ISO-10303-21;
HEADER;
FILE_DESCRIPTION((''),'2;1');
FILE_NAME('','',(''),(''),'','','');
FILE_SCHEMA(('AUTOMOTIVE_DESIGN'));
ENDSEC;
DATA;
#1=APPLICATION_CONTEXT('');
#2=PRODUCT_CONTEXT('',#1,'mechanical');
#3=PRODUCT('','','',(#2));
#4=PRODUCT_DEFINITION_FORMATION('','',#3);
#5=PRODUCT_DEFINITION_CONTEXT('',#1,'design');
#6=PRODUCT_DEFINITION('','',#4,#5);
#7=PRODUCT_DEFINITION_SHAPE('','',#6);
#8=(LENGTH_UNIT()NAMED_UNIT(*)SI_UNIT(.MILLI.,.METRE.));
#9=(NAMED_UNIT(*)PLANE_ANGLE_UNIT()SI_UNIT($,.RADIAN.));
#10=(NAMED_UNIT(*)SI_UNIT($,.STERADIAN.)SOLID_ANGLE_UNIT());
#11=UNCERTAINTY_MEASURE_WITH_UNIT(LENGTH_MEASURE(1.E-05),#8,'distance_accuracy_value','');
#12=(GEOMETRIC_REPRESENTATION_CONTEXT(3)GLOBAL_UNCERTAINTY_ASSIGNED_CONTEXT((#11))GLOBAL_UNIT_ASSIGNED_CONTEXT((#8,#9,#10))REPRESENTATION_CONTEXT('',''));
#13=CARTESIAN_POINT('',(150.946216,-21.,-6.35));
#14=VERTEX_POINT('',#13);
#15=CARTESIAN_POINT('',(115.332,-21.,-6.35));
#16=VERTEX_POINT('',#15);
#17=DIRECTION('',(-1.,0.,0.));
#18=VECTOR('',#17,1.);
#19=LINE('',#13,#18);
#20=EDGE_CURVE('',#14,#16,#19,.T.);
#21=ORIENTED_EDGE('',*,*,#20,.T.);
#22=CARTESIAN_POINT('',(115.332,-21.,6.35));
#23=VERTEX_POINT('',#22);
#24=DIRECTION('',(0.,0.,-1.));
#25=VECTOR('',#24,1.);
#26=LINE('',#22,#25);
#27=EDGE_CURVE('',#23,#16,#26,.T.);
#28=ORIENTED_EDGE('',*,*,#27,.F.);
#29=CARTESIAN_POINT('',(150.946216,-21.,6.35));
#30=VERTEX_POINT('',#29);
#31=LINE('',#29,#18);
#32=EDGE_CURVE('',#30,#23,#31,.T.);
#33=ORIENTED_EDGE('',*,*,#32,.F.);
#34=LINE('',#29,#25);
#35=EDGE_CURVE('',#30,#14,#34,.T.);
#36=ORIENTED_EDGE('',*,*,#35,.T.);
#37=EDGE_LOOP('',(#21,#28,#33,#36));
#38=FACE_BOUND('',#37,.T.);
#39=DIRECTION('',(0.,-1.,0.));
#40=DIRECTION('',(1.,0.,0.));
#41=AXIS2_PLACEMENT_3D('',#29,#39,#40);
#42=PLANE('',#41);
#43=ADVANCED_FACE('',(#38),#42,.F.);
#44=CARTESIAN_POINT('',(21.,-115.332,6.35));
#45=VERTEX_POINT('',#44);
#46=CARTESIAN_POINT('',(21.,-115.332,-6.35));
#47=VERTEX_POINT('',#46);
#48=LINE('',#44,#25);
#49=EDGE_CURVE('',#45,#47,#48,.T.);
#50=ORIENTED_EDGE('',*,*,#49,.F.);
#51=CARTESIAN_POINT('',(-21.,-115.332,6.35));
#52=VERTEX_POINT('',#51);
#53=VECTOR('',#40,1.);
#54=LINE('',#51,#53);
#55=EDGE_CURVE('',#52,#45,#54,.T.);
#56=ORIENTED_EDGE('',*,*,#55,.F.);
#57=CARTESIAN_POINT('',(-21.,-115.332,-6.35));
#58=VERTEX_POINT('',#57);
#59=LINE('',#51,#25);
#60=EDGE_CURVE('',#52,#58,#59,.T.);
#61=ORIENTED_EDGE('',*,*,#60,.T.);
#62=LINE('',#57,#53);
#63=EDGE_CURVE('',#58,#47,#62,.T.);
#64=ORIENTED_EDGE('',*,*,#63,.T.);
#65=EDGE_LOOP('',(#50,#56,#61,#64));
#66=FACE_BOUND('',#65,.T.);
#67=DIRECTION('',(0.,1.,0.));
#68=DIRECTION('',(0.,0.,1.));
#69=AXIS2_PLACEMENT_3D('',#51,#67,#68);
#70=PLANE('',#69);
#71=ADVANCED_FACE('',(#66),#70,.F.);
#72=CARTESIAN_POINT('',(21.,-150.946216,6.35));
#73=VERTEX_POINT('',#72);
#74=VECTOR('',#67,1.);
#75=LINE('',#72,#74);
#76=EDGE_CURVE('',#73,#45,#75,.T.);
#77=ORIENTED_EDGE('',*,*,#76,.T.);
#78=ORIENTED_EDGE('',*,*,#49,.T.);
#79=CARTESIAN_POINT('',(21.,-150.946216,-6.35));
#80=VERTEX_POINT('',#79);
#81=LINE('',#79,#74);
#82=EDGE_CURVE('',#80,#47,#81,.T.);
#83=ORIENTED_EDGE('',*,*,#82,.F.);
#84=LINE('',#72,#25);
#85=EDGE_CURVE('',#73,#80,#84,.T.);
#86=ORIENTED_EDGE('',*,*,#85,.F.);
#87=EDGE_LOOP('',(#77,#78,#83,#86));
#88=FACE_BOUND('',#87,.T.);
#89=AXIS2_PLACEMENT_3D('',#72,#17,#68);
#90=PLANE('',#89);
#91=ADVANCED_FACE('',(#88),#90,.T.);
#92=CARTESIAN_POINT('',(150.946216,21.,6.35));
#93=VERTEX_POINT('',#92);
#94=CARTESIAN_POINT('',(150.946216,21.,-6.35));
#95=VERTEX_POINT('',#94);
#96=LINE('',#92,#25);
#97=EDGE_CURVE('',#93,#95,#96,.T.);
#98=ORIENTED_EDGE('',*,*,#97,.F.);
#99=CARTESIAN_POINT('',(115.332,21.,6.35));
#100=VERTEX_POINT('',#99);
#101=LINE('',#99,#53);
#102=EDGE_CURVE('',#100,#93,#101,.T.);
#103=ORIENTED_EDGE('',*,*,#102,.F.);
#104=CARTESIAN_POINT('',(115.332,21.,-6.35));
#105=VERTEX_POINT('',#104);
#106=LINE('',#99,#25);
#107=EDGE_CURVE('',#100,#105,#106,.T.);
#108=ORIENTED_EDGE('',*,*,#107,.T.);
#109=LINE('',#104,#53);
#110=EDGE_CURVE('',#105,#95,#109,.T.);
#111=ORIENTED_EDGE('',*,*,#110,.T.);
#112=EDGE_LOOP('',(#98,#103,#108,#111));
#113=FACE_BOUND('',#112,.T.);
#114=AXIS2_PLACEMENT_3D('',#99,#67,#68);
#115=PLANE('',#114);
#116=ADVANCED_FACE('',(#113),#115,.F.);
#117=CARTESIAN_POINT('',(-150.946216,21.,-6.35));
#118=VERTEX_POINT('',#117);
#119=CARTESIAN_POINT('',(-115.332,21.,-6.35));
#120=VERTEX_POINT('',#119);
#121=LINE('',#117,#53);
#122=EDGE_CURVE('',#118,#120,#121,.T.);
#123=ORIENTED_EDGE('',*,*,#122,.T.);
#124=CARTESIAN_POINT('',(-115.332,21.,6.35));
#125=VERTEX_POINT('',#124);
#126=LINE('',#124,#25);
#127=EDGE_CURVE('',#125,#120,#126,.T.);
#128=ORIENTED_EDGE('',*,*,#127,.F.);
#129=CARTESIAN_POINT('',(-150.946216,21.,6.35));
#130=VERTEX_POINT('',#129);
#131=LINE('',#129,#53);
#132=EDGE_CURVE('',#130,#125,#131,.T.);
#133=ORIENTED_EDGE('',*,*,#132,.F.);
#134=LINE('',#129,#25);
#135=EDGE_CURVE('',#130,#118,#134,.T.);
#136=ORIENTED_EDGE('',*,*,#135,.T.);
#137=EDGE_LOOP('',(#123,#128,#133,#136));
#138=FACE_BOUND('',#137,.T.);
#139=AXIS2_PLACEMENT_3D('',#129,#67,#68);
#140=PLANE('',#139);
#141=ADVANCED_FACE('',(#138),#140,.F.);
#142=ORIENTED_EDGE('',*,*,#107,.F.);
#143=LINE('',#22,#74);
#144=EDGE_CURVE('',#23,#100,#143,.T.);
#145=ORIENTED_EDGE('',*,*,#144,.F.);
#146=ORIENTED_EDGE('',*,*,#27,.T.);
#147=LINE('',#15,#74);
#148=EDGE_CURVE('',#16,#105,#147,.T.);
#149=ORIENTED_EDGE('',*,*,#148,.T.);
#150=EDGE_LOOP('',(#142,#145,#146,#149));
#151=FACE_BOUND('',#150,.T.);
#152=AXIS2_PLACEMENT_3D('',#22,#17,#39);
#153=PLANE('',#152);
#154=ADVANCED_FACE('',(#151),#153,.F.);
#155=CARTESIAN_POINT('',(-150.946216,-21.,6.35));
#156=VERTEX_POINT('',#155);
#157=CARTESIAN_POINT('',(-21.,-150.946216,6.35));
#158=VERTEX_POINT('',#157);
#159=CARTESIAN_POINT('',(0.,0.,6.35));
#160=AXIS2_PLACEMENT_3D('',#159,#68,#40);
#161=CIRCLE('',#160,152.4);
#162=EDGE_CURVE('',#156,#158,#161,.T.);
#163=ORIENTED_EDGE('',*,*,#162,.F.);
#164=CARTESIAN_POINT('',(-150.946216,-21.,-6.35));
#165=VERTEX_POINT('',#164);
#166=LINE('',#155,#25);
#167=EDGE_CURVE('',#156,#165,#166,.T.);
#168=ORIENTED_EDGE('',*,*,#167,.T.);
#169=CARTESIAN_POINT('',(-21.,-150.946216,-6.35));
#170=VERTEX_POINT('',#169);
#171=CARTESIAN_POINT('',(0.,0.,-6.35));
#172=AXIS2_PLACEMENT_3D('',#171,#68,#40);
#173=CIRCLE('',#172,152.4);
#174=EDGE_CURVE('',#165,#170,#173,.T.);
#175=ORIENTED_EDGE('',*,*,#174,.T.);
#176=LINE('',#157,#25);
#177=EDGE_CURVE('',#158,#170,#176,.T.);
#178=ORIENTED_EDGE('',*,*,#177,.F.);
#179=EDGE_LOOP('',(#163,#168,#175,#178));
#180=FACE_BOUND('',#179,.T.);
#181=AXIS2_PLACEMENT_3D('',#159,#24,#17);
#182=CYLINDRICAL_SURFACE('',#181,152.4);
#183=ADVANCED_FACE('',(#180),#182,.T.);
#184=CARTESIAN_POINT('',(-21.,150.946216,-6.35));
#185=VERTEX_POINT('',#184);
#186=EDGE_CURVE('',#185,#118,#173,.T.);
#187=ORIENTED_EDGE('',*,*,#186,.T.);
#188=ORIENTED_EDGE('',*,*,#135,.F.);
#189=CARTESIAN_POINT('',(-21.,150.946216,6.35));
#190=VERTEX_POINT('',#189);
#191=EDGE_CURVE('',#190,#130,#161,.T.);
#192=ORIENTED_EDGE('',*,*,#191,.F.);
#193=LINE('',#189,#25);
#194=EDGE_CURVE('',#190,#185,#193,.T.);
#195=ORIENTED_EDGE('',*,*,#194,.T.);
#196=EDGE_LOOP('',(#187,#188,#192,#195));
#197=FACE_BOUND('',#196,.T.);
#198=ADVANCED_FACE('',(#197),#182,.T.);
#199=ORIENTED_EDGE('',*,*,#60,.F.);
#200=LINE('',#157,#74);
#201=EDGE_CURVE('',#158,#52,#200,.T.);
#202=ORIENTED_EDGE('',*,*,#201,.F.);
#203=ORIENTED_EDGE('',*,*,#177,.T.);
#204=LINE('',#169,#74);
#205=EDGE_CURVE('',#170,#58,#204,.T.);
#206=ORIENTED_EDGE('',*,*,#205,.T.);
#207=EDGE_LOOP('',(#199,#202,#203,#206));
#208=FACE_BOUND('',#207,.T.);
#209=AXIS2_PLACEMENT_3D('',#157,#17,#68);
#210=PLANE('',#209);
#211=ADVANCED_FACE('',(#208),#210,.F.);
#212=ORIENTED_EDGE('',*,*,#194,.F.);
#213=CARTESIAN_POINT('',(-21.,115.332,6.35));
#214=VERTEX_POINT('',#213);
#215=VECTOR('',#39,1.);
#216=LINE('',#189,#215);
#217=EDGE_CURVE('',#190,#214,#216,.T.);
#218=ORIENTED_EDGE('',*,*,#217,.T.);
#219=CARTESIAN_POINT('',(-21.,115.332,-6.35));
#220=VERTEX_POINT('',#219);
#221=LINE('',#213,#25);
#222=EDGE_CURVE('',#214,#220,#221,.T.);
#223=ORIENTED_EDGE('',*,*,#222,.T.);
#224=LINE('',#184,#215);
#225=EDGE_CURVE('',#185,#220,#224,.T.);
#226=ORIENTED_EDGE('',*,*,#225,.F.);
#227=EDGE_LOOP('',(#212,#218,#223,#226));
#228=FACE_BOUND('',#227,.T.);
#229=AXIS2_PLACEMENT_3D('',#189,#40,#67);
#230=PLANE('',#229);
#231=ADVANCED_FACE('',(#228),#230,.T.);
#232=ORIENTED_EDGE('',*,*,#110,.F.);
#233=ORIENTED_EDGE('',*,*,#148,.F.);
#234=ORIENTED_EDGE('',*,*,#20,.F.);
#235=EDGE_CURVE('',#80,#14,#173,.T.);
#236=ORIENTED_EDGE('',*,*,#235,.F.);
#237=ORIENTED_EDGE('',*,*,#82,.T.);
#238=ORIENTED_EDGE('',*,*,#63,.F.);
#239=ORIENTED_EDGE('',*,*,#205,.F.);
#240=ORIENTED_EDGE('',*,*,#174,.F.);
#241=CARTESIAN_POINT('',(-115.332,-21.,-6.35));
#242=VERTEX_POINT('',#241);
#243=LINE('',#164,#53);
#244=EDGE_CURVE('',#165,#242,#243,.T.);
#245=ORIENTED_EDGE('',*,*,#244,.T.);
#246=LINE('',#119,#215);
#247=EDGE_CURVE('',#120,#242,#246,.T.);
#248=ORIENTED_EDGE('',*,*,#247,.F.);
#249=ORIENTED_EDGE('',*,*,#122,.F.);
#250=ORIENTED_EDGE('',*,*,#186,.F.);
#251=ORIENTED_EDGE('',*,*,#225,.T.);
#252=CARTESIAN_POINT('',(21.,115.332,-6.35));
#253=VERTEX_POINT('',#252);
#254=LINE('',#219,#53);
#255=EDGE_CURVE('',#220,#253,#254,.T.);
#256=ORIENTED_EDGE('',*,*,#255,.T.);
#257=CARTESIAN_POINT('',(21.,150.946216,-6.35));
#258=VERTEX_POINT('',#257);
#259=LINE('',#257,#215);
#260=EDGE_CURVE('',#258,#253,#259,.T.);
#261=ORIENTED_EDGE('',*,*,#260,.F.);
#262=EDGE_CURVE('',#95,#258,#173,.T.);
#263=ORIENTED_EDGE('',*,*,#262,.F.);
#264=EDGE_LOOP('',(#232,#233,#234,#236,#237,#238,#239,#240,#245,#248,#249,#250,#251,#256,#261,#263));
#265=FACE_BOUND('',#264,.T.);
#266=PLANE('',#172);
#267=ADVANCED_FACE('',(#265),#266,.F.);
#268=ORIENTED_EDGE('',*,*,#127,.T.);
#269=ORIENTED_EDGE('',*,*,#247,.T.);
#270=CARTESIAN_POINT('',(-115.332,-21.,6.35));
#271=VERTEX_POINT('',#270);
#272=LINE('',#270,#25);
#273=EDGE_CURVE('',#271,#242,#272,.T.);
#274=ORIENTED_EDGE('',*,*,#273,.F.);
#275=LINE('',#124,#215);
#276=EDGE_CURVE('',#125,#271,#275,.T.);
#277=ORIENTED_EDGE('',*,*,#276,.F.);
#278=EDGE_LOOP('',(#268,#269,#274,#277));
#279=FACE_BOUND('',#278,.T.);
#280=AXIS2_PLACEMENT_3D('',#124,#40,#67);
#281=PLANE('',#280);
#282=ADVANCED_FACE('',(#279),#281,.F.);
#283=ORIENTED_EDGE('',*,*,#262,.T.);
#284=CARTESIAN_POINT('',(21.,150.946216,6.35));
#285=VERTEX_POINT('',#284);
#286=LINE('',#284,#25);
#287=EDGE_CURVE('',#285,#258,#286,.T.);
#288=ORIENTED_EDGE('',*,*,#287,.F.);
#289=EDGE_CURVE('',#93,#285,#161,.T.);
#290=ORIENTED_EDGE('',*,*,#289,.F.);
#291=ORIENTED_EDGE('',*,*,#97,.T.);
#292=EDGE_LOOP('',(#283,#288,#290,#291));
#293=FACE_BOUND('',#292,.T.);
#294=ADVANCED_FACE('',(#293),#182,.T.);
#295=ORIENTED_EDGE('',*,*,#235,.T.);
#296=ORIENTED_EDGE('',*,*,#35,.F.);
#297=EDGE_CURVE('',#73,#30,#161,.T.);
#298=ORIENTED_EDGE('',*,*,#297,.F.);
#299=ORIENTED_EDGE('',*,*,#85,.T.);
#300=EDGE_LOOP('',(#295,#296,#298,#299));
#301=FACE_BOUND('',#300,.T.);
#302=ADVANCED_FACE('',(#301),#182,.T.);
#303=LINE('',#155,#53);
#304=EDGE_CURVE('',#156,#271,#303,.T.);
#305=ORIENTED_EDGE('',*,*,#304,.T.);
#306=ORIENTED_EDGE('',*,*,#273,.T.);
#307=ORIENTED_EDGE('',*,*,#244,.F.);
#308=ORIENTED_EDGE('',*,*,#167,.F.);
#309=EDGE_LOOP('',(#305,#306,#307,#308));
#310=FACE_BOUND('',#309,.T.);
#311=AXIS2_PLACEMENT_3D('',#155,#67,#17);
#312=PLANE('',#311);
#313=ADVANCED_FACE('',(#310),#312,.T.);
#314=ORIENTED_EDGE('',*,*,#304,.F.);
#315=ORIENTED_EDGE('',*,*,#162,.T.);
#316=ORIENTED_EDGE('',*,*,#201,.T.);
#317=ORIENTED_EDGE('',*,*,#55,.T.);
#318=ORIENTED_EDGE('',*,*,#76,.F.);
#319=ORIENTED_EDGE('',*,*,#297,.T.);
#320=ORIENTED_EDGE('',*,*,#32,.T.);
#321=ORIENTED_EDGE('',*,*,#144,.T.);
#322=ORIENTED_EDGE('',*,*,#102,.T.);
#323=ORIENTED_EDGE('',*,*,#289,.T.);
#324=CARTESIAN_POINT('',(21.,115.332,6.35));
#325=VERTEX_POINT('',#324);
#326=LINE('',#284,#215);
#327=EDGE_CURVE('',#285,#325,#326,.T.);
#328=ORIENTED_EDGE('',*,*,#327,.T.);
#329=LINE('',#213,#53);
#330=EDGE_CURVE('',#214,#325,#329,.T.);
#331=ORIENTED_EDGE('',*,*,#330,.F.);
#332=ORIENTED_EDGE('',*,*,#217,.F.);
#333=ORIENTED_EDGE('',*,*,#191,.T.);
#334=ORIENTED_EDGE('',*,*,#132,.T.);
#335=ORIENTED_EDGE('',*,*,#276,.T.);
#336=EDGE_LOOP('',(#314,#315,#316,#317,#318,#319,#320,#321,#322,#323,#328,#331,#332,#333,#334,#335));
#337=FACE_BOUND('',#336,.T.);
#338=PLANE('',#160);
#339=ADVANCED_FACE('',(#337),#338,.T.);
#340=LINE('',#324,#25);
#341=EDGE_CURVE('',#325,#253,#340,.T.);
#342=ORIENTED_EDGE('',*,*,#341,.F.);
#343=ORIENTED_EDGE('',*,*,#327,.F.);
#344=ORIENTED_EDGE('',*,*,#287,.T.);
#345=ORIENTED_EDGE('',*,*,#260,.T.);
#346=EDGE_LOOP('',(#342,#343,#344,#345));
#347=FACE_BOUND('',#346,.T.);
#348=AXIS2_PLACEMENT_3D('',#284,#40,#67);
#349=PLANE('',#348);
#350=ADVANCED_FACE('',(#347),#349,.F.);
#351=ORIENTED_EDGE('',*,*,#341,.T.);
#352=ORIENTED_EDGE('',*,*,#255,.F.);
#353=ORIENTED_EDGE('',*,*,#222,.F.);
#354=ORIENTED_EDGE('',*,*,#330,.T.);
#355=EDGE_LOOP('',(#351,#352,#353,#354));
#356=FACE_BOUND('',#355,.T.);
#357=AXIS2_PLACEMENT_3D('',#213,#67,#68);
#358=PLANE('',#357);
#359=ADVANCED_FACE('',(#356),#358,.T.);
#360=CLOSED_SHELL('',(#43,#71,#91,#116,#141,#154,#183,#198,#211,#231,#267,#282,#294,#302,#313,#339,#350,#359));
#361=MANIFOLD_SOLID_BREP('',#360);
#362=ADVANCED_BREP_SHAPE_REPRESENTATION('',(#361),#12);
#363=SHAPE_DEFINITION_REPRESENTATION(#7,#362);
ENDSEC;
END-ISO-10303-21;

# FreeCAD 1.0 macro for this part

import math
import FreeCAD as App
import Part
import Sketcher

V = App.Vector
Q = App.Units.Quantity

doc = App.newDocument("Part")
body = doc.addObject("PartDesign::Body", "Body")

# Sketch on XY plane
sketch1 = body.newObject("Sketcher::SketchObject", "Sketch")
sketch1.AttachmentSupport = (doc.getObject("XY_Plane"), [""])
sketch1.MapMode = "FlatFace"
sketch1.addGeometry(Part.LineSegment(V(151, -21, 0), V(115, -21, 0)), False)
sketch1.addGeometry(Part.LineSegment(V(115, -21, 0), V(115, 21, 0)), False)
sketch1.addGeometry(Part.LineSegment(V(115, 21, 0), V(151, 21, 0)), False)
sketch1.addGeometry(Part.ArcOfCircle(Part.Circle(V(0, 0, 0), V(0, 0, 1), 152), math.radians(8), math.radians(82)), False)
sketch1.addGeometry(Part.LineSegment(V(21, 151, 0), V(21, 115, 0)), False)
sketch1.addGeometry(Part.LineSegment(V(21, 115, 0), V(-21, 115, 0)), False)
sketch1.addGeometry(Part.LineSegment(V(-21, 115, 0), V(-21, 151, 0)), False)
sketch1.addGeometry(Part.ArcOfCircle(Part.Circle(V(0, 0, 0), V(0, 0, 1), 152), math.radians(98), math.radians(172)), False)
sketch1.addGeometry(Part.LineSegment(V(-151, 21, 0), V(-115, 21, 0)), False)
sketch1.addGeometry(Part.LineSegment(V(-115, 21, 0), V(-115, -21, 0)), False)
sketch1.addGeometry(Part.LineSegment(V(-115, -21, 0), V(-151, -21, 0)), False)
sketch1.addGeometry(Part.ArcOfCircle(Part.Circle(V(0, 0, 0), V(0, 0, 1), 152), math.radians(-172), math.radians(-98)), False)
sketch1.addGeometry(Part.LineSegment(V(-21, -151, 0), V(-21, -115, 0)), False)
sketch1.addGeometry(Part.LineSegment(V(-21, -115, 0), V(21, -115, 0)), False)
sketch1.addGeometry(Part.LineSegment(V(21, -115, 0), V(21, -151, 0)), False)
sketch1.addGeometry(Part.ArcOfCircle(Part.Circle(V(0, 0, 0), V(0, 0, 1), 152), math.radians(-82), math.radians(-8)), False)
sketch1.addConstraint(Sketcher.Constraint("Coincident", 0, 2, 1, 1))
sketch1.addConstraint(Sketcher.Constraint("Coincident", 1, 2, 2, 1))
sketch1.addConstraint(Sketcher.Constraint("Coincident", 2, 2, 3, 1))
sketch1.addConstraint(Sketcher.Constraint("Coincident", 3, 2, 4, 1))
sketch1.addConstraint(Sketcher.Constraint("Coincident", 4, 2, 5, 1))
sketch1.addConstraint(Sketcher.Constraint("Coincident", 5, 2, 6, 1))
sketch1.addConstraint(Sketcher.Constraint("Coincident", 6, 2, 7, 1))
sketch1.addConstraint(Sketcher.Constraint("Coincident", 7, 2, 8, 1))
sketch1.addConstraint(Sketcher.Constraint("Coincident", 8, 2, 9, 1))
sketch1.addConstraint(Sketcher.Constraint("Coincident", 9, 2, 10, 1))
sketch1.addConstraint(Sketcher.Constraint("Coincident", 10, 2, 11, 1))
sketch1.addConstraint(Sketcher.Constraint("Coincident", 11, 2, 12, 1))
sketch1.addConstraint(Sketcher.Constraint("Coincident", 12, 2, 13, 1))
sketch1.addConstraint(Sketcher.Constraint("Coincident", 13, 2, 14, 1))
sketch1.addConstraint(Sketcher.Constraint("Coincident", 14, 2, 15, 1))
sketch1.addConstraint(Sketcher.Constraint("Coincident", 15, 2, 0, 1))
sketch1.addConstraint(Sketcher.Constraint("Horizontal", 0))
sketch1.addConstraint(Sketcher.Constraint("Vertical", 1))
sketch1.addConstraint(Sketcher.Constraint("Horizontal", 2))
sketch1.addConstraint(Sketcher.Constraint("Vertical", 4))
sketch1.addConstraint(Sketcher.Constraint("Horizontal", 5))
sketch1.addConstraint(Sketcher.Constraint("Vertical", 6))
sketch1.addConstraint(Sketcher.Constraint("Horizontal", 8))
sketch1.addConstraint(Sketcher.Constraint("Vertical", 9))
sketch1.addConstraint(Sketcher.Constraint("Horizontal", 10))
sketch1.addConstraint(Sketcher.Constraint("Vertical", 12))
sketch1.addConstraint(Sketcher.Constraint("Horizontal", 13))
sketch1.addConstraint(Sketcher.Constraint("Vertical", 14))
sketch1.addConstraint(Sketcher.Constraint("Coincident", 3, 3, -1, 1))
sketch1.addConstraint(Sketcher.Constraint("Coincident", 7, 3, -1, 1))
sketch1.addConstraint(Sketcher.Constraint("Coincident", 11, 3, -1, 1))
sketch1.addConstraint(Sketcher.Constraint("Coincident", 15, 3, -1, 1))
sketch1.addConstraint(Sketcher.Constraint("Equal", 3, 7))
sketch1.addConstraint(Sketcher.Constraint("Equal", 7, 11))
sketch1.addConstraint(Sketcher.Constraint("Equal", 11, 15))
sketch1.addConstraint(Sketcher.Constraint("Symmetric", 0, 2, 8, 2, -1, 1))
sketch1.addConstraint(Sketcher.Constraint("Symmetric", 4, 2, 12, 2, -1, 1))
sketch1.addConstraint(Sketcher.Constraint("Horizontal", 3, 2, 6, 2))
sketch1.addConstraint(Sketcher.Constraint("Horizontal", 2, 2, 7, 2))
sketch1.addConstraint(Sketcher.Constraint("Horizontal", 0, 2, 9, 2))
sketch1.addConstraint(Sketcher.Constraint("Horizontal", 11, 2, 14, 2))
sketch1.addConstraint(Sketcher.Constraint("Equal", 13, 1))
sketch1.addConstraint(Sketcher.Constraint("Equal", 10, 4))
sketch1.addConstraint(Sketcher.Constraint("Radius", 3, Q("6 in")))
sketch1.addConstraint(Sketcher.Constraint("DistanceX", 5, 2, 5, 1, Q("42 mm")))
sketch1.addConstraint(Sketcher.Constraint("DistanceX", -1, 1, 0, 2, Q("115.332 mm")))
pad1 = body.newObject("PartDesign::Pad", "Pad")
pad1.Profile = sketch1
pad1.Length = Q("0.5 in")
pad1.Midplane = True

doc.recompute()
